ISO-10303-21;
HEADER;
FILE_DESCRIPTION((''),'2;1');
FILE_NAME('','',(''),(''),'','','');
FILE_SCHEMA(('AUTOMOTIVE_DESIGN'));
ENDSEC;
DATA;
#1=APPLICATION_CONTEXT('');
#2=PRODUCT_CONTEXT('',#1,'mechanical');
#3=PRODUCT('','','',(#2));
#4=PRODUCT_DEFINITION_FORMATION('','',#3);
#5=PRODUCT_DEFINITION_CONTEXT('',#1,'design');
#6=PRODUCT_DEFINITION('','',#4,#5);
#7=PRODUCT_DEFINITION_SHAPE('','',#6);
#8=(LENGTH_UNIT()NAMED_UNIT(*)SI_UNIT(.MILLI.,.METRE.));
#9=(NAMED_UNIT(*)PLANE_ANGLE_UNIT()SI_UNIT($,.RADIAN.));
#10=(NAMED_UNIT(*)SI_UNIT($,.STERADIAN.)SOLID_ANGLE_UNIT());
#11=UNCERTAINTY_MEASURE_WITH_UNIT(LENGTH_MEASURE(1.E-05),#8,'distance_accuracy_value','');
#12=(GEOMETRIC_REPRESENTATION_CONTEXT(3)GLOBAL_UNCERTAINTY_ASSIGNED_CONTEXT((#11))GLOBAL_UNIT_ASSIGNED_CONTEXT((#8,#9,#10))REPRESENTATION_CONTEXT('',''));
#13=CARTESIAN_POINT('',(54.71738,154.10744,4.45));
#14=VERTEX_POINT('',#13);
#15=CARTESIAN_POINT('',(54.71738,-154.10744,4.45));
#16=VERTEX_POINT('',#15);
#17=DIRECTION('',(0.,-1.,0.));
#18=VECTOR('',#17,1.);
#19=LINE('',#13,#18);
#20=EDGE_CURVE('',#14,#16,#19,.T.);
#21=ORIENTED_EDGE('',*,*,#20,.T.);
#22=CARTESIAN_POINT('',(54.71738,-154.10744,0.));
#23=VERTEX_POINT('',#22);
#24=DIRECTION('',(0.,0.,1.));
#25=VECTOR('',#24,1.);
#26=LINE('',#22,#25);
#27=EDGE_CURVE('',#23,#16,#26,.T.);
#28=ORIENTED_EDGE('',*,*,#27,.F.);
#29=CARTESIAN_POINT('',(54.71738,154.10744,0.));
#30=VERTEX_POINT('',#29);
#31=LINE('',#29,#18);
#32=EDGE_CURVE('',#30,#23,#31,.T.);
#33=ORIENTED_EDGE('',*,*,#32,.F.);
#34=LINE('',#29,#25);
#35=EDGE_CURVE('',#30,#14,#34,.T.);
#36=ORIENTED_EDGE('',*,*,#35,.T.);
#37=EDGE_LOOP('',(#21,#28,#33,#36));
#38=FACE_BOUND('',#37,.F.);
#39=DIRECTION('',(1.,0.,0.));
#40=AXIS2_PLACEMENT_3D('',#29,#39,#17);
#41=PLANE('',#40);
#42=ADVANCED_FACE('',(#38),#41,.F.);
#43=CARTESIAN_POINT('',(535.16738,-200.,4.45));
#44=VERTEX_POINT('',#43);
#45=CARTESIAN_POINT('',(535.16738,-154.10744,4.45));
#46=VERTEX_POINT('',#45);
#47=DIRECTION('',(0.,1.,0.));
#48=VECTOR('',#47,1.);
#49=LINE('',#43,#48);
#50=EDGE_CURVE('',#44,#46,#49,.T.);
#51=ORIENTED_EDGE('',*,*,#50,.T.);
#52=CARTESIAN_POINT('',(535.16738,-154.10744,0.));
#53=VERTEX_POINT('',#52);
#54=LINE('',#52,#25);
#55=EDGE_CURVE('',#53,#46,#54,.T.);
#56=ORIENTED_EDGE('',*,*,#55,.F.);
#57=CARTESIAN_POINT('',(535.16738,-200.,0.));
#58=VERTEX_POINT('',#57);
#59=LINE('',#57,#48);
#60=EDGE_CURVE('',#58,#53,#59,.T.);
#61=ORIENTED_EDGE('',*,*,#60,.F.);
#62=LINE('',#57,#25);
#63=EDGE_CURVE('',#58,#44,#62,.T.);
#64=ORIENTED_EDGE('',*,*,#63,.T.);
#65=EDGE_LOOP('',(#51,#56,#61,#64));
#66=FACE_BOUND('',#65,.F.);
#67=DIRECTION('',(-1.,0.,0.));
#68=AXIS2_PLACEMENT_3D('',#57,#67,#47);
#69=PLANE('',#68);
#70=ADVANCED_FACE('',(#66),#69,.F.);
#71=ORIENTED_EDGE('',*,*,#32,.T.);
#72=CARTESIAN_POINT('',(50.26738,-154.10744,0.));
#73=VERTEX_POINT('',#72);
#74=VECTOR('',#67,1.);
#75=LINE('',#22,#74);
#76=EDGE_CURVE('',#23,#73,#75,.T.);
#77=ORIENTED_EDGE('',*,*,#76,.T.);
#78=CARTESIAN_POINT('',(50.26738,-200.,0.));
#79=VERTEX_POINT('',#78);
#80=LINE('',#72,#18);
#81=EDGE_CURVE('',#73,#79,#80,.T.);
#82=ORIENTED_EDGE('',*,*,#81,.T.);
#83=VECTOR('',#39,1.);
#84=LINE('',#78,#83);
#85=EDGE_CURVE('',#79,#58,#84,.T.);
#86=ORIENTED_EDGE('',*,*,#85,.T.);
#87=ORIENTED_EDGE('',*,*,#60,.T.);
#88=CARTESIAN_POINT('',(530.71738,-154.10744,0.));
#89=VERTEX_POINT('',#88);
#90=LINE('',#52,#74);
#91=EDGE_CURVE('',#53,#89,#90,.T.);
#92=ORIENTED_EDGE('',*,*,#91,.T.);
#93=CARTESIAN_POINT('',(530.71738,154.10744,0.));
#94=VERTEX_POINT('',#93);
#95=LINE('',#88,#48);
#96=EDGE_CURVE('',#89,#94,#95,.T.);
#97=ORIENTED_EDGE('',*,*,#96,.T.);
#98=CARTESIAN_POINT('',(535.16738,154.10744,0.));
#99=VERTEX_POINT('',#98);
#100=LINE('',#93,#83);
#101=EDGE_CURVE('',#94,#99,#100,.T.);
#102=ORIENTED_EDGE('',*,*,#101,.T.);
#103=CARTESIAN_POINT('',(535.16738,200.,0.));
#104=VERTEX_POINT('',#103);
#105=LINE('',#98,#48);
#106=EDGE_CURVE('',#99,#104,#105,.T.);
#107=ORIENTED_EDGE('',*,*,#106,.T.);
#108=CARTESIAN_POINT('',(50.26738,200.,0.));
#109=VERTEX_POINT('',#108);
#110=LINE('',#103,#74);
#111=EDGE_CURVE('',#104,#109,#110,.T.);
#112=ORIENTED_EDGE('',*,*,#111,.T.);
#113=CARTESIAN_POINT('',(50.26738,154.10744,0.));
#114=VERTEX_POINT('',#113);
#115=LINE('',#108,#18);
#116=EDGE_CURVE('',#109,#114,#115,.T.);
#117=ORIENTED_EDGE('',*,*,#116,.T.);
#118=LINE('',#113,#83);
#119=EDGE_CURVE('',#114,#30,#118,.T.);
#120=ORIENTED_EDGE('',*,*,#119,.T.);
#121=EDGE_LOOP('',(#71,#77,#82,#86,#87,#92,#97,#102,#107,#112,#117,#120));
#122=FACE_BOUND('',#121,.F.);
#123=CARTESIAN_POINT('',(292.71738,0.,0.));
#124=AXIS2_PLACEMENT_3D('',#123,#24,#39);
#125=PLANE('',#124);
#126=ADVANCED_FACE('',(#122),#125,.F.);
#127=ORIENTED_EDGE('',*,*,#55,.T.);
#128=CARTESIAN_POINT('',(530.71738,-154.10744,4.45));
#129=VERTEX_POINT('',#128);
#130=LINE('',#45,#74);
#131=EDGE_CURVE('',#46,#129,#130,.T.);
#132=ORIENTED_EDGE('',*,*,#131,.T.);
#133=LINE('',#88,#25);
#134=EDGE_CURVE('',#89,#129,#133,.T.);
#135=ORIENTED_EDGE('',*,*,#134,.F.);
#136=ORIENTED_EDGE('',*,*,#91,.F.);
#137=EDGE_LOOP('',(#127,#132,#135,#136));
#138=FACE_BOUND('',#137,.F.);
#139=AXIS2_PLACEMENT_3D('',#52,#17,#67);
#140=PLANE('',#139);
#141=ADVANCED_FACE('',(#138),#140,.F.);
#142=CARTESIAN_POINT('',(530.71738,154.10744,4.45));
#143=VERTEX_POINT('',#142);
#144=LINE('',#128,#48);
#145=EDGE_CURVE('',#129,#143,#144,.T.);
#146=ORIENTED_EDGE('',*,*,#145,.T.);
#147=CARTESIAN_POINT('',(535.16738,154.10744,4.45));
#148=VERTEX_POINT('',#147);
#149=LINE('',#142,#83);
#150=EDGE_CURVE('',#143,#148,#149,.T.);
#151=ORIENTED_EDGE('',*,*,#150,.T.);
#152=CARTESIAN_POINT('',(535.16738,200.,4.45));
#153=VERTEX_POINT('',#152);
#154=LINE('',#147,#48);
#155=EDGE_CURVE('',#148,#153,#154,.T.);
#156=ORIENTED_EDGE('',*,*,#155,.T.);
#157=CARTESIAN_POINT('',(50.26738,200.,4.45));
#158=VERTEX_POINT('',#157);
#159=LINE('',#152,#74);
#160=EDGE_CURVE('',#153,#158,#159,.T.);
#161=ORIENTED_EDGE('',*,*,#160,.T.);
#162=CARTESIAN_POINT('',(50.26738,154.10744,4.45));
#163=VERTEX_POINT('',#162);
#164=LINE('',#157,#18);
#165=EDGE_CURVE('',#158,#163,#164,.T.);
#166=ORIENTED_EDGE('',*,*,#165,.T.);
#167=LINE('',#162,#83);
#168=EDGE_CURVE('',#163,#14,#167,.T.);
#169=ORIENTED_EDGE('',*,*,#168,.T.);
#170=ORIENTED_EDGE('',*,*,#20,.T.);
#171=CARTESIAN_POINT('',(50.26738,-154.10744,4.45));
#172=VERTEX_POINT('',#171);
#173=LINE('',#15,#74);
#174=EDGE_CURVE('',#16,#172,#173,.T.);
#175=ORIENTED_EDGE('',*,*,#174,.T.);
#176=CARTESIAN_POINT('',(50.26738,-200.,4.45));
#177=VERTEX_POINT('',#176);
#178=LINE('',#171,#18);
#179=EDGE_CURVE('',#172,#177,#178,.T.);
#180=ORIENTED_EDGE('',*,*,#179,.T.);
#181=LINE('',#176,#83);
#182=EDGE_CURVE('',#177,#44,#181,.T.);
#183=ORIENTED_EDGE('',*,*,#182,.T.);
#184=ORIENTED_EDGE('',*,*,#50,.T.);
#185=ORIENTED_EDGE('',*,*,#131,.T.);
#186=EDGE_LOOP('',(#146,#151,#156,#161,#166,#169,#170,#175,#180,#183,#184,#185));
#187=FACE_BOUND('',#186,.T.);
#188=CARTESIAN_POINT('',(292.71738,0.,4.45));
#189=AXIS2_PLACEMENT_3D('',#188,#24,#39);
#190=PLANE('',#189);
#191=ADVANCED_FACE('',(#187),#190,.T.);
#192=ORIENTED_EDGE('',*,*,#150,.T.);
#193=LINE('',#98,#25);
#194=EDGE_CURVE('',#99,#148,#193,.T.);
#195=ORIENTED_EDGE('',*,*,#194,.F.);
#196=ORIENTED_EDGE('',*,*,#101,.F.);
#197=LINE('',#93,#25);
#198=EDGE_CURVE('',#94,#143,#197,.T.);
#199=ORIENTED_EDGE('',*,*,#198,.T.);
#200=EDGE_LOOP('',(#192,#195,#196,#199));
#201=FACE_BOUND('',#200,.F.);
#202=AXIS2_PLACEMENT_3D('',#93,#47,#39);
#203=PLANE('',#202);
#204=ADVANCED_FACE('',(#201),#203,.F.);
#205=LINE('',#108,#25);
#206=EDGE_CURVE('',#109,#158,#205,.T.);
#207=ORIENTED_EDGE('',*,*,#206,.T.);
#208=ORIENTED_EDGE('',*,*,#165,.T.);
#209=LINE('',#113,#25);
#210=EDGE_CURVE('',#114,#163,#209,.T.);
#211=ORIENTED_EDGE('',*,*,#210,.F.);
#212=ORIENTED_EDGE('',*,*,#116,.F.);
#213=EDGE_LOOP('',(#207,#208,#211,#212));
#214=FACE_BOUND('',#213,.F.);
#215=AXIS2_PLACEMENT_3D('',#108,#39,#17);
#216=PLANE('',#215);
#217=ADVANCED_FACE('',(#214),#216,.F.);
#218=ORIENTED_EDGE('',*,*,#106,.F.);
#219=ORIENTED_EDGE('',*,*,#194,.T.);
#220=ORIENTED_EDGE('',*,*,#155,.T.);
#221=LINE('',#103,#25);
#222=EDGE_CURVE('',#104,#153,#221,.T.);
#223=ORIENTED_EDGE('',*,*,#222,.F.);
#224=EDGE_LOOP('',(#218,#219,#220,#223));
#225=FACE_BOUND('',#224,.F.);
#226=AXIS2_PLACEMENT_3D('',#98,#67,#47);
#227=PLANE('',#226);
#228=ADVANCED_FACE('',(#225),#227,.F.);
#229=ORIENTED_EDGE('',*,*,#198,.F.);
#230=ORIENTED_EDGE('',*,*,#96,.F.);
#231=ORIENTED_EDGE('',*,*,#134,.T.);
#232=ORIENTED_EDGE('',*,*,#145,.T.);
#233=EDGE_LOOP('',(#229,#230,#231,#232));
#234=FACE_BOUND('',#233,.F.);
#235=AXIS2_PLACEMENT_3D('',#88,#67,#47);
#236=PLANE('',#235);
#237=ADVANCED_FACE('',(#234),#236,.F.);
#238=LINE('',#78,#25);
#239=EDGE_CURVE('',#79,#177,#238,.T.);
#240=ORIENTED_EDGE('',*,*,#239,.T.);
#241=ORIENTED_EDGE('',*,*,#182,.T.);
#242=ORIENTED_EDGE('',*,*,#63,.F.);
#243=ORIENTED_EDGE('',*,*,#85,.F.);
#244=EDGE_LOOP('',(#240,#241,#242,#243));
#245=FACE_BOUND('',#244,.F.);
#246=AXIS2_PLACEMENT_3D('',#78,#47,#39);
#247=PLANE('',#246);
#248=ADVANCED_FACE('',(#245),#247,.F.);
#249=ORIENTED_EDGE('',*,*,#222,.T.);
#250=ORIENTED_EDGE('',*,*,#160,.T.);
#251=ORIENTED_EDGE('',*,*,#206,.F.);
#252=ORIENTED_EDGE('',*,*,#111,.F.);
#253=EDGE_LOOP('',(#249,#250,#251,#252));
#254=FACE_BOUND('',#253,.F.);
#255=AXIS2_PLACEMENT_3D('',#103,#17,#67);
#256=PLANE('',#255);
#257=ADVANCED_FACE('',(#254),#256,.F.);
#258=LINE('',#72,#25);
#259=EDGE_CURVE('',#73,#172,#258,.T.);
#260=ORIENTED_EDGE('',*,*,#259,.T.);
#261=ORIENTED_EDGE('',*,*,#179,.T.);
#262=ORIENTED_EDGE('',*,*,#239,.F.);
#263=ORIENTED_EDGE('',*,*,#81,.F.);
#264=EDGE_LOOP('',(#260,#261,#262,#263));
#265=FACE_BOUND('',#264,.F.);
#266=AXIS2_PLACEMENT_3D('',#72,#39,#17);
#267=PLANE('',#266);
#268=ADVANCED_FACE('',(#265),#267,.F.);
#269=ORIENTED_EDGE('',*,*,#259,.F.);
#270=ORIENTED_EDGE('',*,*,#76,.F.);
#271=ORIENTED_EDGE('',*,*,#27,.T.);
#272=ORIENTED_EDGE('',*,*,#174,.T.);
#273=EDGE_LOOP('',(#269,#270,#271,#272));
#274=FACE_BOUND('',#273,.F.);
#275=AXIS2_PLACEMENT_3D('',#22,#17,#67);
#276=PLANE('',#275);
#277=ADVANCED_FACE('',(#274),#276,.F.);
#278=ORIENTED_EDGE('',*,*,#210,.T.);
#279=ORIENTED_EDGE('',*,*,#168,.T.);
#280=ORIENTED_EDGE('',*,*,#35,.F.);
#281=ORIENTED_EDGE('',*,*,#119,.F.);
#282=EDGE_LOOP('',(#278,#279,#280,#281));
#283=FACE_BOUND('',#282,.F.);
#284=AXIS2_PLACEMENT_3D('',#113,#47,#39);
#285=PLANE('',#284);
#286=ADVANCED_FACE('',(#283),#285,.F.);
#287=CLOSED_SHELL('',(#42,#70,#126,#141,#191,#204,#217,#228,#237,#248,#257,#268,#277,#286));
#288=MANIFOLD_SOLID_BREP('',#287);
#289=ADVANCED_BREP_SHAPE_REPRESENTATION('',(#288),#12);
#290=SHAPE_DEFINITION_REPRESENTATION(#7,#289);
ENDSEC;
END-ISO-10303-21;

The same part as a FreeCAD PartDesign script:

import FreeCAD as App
import Part
import Sketcher

V = App.Vector


def add_polygon(sketch, points):
    """Adds a closed chain of lines whose ends are joined by coincident constraints."""
    first, n = sketch.GeometryCount, len(points)
    for a, b in zip(points, points[1:] + points[:1]):
        sketch.addGeometry(Part.LineSegment(App.Vector(*a, 0), App.Vector(*b, 0)), False)
    for i in range(n):
        sketch.addConstraint(Sketcher.Constraint("Coincident", first + i, 2, first + (i + 1) % n, 1))

doc = App.newDocument("Part")
body = doc.addObject("PartDesign::Body", "Body")

# Sketch on XY plane
sketch1 = doc.addObject("Sketcher::SketchObject", "Sketch")
body.addObject(sketch1)
sketch1.AttachmentSupport = (doc.XY_Plane, [""])
sketch1.MapMode = "FlatFace"
add_polygon(sketch1, [(50.26738, -154.10744), (50.26738, -200), (535.16738, -200), (535.16738, -154.10744), (530.71738, -154.10744), (530.71738, 154.10744), (535.16738, 154.10744), (535.16738, 200), (50.26738, 200), (50.26738, 154.10744), (54.71738, 154.10744), (54.71738, -154.10744)])  # lines 0-11
sketch1.addConstraint(Sketcher.Constraint("Vertical", 0))
sketch1.addConstraint(Sketcher.Constraint("Horizontal", 1))
sketch1.addConstraint(Sketcher.Constraint("Vertical", 2))
sketch1.addConstraint(Sketcher.Constraint("Horizontal", 3))
sketch1.addConstraint(Sketcher.Constraint("Vertical", 4))
sketch1.addConstraint(Sketcher.Constraint("Horizontal", 5))
sketch1.addConstraint(Sketcher.Constraint("Vertical", 6))
sketch1.addConstraint(Sketcher.Constraint("Horizontal", 7))
sketch1.addConstraint(Sketcher.Constraint("Vertical", 8))
sketch1.addConstraint(Sketcher.Constraint("Horizontal", 9))
sketch1.addConstraint(Sketcher.Constraint("Vertical", 10))
sketch1.addConstraint(Sketcher.Constraint("Horizontal", 11))
sketch1.addConstraint(Sketcher.Constraint("Symmetric", 2, 2, 5, 2, -1))
sketch1.addConstraint(Sketcher.Constraint("Symmetric", 0, 2, 7, 2, -1))
sketch1.addConstraint(Sketcher.Constraint("Horizontal", 5, 2, 8, 2))
sketch1.addConstraint(Sketcher.Constraint("Horizontal", 3, 2, 10, 2))
sketch1.addConstraint(Sketcher.Constraint("Equal", 5, 9))
sketch1.addConstraint(Sketcher.Constraint("DistanceX", 1, 1, 1, 2, 484.9))
sketch1.addConstraint(Sketcher.Constraint("DistanceY", 0, 2, -1, 1, 200.0))
sketch1.addConstraint(Sketcher.Constraint("DistanceX", 9, 2, 4, 2, 476.0))
sketch1.addConstraint(Sketcher.Constraint("DistanceY", 0, 2, 0, 1, 45.89256))
sketch1.addConstraint(Sketcher.Constraint("DistanceX", -1, 1, 0, 2, 50.26738))
pad1 = doc.addObject("PartDesign::Pad", "Pad")
body.addObject(pad1)
pad1.Profile = sketch1
pad1.Length = 4.45

doc.recompute()
